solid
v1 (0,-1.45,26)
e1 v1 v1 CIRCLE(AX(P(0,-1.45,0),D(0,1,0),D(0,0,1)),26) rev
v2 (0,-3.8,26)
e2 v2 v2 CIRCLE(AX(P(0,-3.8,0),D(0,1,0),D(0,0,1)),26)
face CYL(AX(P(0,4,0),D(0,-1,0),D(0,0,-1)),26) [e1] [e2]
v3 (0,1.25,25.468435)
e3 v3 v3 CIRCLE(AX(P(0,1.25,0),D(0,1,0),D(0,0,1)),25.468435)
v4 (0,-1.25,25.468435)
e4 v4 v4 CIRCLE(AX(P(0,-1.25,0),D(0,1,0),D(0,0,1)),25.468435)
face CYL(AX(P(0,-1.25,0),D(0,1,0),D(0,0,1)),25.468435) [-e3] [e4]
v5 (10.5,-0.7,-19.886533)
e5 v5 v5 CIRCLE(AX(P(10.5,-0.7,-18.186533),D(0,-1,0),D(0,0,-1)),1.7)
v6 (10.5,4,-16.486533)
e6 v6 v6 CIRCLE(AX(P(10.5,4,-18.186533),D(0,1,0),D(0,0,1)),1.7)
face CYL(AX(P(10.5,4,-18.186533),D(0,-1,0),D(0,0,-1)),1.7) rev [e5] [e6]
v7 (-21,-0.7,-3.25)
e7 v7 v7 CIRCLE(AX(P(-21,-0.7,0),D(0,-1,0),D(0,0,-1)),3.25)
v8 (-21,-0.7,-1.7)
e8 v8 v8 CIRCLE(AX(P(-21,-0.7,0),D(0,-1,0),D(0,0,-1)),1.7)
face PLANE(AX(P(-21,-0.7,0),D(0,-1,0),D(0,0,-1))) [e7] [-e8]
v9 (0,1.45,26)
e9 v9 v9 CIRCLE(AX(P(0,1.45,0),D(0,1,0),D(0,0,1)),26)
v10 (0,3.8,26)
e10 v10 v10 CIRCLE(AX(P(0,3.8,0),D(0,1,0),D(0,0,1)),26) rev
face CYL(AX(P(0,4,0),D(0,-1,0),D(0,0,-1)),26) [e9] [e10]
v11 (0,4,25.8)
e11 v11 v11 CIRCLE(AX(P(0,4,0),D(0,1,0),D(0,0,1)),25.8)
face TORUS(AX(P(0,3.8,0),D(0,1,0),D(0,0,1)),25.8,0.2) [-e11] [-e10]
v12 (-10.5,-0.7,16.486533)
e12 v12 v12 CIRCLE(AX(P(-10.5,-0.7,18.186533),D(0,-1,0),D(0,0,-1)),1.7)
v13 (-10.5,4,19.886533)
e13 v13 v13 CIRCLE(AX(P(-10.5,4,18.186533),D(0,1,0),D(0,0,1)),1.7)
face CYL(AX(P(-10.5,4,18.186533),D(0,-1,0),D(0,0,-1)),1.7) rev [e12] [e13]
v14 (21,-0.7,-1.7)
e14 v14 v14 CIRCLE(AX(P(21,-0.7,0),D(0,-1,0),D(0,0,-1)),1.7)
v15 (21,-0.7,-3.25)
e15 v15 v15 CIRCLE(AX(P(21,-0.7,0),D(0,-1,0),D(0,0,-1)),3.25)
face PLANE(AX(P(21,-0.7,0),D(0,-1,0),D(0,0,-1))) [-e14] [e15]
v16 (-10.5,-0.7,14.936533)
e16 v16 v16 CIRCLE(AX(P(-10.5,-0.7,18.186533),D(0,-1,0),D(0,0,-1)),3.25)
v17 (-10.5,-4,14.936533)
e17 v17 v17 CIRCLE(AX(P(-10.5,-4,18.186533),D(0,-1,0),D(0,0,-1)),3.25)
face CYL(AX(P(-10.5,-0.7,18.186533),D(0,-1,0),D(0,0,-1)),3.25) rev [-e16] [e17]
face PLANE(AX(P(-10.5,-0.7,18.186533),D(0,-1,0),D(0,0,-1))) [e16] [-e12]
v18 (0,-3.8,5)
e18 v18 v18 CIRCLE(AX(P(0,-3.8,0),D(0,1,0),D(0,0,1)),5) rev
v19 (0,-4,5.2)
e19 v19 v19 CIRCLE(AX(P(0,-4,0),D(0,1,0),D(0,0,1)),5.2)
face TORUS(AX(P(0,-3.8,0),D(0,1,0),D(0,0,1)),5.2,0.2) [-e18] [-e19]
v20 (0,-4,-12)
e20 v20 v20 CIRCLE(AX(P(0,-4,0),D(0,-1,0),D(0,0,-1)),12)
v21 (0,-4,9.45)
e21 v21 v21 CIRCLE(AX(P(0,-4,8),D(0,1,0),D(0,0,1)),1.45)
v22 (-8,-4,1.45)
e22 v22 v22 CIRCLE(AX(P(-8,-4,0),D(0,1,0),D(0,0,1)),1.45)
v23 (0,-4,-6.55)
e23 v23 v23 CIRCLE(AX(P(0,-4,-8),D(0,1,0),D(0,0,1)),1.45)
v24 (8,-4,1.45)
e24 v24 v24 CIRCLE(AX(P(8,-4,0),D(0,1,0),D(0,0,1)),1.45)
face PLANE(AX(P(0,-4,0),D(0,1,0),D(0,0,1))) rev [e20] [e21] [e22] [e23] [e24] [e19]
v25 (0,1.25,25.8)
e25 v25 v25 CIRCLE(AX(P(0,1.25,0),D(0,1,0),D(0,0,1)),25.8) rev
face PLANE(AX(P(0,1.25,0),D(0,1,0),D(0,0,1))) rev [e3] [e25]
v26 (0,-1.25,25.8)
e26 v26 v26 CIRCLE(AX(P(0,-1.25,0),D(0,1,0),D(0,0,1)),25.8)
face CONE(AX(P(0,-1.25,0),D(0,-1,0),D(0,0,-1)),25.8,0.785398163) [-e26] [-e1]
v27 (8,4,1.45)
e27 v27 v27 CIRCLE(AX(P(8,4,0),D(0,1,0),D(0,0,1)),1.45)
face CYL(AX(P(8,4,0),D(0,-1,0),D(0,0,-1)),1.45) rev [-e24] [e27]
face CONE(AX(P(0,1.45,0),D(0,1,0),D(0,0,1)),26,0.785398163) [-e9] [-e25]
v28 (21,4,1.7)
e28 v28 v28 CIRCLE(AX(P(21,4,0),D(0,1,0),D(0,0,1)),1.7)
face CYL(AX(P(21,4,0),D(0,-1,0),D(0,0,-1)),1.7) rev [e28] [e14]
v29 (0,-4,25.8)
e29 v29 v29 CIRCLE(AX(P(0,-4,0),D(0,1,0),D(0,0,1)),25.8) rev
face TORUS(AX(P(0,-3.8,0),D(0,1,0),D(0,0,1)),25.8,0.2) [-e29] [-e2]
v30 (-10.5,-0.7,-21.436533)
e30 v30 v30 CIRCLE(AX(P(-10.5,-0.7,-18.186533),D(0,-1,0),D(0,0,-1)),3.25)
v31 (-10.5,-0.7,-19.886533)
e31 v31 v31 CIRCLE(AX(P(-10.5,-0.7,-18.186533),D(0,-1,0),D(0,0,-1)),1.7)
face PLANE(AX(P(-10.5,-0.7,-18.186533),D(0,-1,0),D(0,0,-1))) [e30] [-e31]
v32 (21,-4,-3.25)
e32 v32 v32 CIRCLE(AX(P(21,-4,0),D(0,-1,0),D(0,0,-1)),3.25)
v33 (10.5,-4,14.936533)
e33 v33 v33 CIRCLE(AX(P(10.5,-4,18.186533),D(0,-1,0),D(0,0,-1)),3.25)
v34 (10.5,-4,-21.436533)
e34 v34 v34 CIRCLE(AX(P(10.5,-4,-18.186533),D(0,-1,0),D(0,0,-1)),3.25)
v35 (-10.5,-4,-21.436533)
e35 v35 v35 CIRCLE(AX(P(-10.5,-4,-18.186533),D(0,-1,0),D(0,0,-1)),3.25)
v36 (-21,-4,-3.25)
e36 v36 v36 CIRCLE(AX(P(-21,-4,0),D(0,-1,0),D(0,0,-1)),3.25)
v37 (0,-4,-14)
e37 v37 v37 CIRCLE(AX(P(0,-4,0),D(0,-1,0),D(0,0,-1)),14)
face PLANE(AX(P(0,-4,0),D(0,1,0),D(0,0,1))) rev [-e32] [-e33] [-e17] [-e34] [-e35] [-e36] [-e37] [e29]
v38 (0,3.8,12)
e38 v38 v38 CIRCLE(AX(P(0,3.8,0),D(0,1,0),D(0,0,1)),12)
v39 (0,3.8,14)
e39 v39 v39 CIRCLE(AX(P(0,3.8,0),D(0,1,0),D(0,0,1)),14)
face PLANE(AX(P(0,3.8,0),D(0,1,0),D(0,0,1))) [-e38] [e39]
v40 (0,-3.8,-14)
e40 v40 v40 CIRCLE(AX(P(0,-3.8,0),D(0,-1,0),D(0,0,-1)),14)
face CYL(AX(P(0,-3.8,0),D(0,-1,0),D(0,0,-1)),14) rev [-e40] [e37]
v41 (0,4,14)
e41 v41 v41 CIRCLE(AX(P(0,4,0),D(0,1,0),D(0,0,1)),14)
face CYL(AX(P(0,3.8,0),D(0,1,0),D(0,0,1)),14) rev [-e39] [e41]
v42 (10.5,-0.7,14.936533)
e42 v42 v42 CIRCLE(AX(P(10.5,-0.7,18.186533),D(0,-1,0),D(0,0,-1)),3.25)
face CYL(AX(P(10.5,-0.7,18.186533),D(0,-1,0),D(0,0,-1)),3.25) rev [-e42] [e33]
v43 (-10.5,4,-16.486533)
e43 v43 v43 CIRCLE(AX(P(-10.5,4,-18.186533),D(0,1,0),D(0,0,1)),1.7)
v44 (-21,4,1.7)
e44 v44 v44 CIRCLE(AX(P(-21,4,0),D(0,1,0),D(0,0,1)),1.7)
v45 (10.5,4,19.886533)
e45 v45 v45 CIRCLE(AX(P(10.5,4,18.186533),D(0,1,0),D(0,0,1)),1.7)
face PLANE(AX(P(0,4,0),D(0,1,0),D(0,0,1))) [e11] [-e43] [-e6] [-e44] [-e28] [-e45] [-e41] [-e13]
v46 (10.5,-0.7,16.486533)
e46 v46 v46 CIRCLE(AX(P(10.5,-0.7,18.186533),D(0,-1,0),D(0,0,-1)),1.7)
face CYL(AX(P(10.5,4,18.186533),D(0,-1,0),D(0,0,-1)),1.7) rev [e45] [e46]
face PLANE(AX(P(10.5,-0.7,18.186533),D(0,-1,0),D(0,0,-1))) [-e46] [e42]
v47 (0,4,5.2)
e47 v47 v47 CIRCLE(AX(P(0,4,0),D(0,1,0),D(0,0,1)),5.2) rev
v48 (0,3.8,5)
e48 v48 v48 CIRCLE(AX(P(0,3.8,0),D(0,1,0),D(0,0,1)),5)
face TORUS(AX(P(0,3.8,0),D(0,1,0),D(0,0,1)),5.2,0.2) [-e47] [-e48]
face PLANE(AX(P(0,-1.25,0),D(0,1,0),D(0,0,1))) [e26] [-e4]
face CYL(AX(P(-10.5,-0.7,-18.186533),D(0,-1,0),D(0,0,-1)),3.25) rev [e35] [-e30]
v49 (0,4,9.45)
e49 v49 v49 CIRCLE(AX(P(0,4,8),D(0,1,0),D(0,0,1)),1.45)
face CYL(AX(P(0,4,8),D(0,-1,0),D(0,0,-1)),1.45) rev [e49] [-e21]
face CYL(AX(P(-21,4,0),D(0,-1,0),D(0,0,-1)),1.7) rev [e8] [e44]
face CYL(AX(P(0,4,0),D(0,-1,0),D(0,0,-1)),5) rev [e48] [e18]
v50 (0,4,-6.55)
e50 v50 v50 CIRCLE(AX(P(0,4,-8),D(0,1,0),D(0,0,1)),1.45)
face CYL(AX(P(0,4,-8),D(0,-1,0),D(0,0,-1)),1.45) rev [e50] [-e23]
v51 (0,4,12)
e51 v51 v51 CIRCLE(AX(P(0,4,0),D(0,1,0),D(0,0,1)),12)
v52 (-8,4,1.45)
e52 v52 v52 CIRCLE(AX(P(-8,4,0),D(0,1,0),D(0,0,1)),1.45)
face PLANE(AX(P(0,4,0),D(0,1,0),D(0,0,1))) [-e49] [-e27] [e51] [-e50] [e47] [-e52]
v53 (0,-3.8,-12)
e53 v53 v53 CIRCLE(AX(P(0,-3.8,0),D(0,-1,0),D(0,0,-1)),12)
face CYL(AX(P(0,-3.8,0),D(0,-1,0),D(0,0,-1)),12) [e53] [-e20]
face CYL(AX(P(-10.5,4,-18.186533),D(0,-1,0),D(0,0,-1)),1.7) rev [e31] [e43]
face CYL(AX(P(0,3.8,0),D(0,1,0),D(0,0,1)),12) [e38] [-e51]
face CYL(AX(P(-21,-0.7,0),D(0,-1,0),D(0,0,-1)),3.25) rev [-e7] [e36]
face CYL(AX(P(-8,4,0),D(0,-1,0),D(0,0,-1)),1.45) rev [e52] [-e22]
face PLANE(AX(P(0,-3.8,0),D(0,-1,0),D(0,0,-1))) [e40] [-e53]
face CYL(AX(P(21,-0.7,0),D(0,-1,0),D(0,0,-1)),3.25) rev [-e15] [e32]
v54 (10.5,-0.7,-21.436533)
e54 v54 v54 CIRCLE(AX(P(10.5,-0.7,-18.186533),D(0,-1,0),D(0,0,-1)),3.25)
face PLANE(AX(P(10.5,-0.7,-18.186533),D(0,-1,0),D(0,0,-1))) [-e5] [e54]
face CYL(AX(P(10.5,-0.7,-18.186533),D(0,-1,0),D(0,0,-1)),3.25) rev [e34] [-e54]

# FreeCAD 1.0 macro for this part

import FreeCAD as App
import Part
import Sketcher
Q = App.Units.Quantity


def edges_at(feature, points):
    """Names of the edges that pass closest to the given points."""
    edges = feature.Shape.Edges
    near = lambda p: min(range(len(edges)), key=lambda i: edges[i].distToShape(Part.Vertex(*p))[0])
    return sorted({f"Edge{near(p) + 1}" for p in points})

doc = App.newDocument("Part")
params = doc.addObject("Spreadsheet::Sheet", "Params")
for row, (alias, value) in enumerate([
    ("sketch1_diameter", "52 mm"),
    ("sketch1_diameter2", "10 mm"),
    ("sketch1_diameter3", "3.4 mm"),
    ("sketch1_diameter4", "2.9 mm"),
    ("pad1_length", "8 mm"),
    ("sketch2_diameter", "28 mm"),
    ("sketch2_diameter2", "24 mm"),
    ("pocket1_length", "0.2 mm"),
    ("sketch3_diameter", "28 mm"),
    ("sketch3_diameter2", "24 mm"),
    ("pocket2_length", "0.2 mm"),
    ("pocket3_length", "2.5 mm"),
    ("chamfer_size", "0.2 mm"),
    ("fillet_radius", "0.2 mm"),
    ("sketch5_diameter", "6.5 mm"),
    ("pocket4_length", "3.3 mm"),
], start=1):
    params.set(f"A{row}", alias)
    params.set(f"B{row}", "=" + value)
    params.setAlias(f"B{row}", alias)

body = doc.addObject("PartDesign::Body", "Body")

# Sketch on XZ plane
sketch1 = doc.addObject("Sketcher::SketchObject", "Sketch")
body.addObject(sketch1)
sketch1.AttachmentSupport = (doc.XZ_Plane, [""])
sketch1.MapMode = "FlatFace"
sketch1.addGeometry([
    Part.Circle(App.Vector(0, 0, 0), App.Vector(0, 0, 1), 26),  # 0
    Part.Circle(App.Vector(-10.5, 18.2, 0), App.Vector(0, 0, 1), 1.7),  # 1
    Part.Circle(App.Vector(10.5, 18.2, 0), App.Vector(0, 0, 1), 1.7),  # 2
    Part.Circle(App.Vector(0, 8, 0), App.Vector(0, 0, 1), 1.4),  # 3
    Part.Circle(App.Vector(-21, 0, 0), App.Vector(0, 0, 1), 1.7),  # 4
    Part.Circle(App.Vector(-8, 0, 0), App.Vector(0, 0, 1), 1.4),  # 5
    Part.Circle(App.Vector(-10.5, -18.2, 0), App.Vector(0, 0, 1), 1.7),  # 6
    Part.Circle(App.Vector(0, 0, 0), App.Vector(0, 0, 1), 5),  # 7
    Part.Circle(App.Vector(8, 0, 0), App.Vector(0, 0, 1), 1.4),  # 8
    Part.Circle(App.Vector(0, -8, 0), App.Vector(0, 0, 1), 1.4),  # 9
    Part.Circle(App.Vector(21, 0, 0), App.Vector(0, 0, 1), 1.7),  # 10
    Part.Circle(App.Vector(10.5, -18.2, 0), App.Vector(0, 0, 1), 1.7),  # 11
], False)
sketch1.addConstraint([
    Sketcher.Constraint("Coincident", 0, 3, -1, 1),
    Sketcher.Constraint("Coincident", 7, 3, -1, 1),
    Sketcher.Constraint("Equal", 1, 2),
    Sketcher.Constraint("Equal", 2, 4),
    Sketcher.Constraint("Equal", 3, 5),
    Sketcher.Constraint("Equal", 4, 6),
    Sketcher.Constraint("Equal", 5, 8),
    Sketcher.Constraint("Equal", 8, 9),
    Sketcher.Constraint("Equal", 6, 10),
    Sketcher.Constraint("Equal", 10, 11),
    Sketcher.Constraint("Symmetric", 2, 3, 6, 3, -1, 1),
    Sketcher.Constraint("Symmetric", 5, 3, 8, 3, -1, 1),
    Sketcher.Constraint("Symmetric", 3, 3, 9, 3, -1, 1),
    Sketcher.Constraint("Symmetric", 4, 3, 10, 3, -1, 1),
    Sketcher.Constraint("Symmetric", 1, 3, 11, 3, -1, 1),
    Sketcher.Constraint("Symmetric", 1, 3, 2, 3, -2),
    Sketcher.Constraint("PointOnObject", 3, 3, -2),
    Sketcher.Constraint("PointOnObject", 4, 3, -1),
    Sketcher.Constraint("PointOnObject", 5, 3, -1),
    Sketcher.Constraint("Diameter", 0, Q("52 mm")),
    Sketcher.Constraint("Diameter", 7, Q("10 mm")),
    Sketcher.Constraint("Diameter", 1, Q("3.4 mm")),
    Sketcher.Constraint("Diameter", 3, Q("2.9 mm")),
    Sketcher.Constraint("DistanceY", -1, 1, 3, 3, Q("8 mm")),
    Sketcher.Constraint("DistanceX", 4, 3, -1, 1, Q("21 mm")),
    Sketcher.Constraint("DistanceX", 5, 3, -1, 1, Q("8 mm")),
    Sketcher.Constraint("DistanceX", 1, 3, 2, 3, Q("21 mm")),
    Sketcher.Constraint("DistanceY", -1, 1, 1, 3, Q("18.186533 mm")),
])
sketch1.setExpression("Constraints[19]", "Params.sketch1_diameter")
sketch1.setExpression("Constraints[20]", "Params.sketch1_diameter2")
sketch1.setExpression("Constraints[21]", "Params.sketch1_diameter3")
sketch1.setExpression("Constraints[22]", "Params.sketch1_diameter4")
pad1 = doc.addObject("PartDesign::Pad", "Pad")
body.addObject(pad1)
pad1.Profile = sketch1
pad1.setExpression("Length", "Params.pad1_length")
pad1.Midplane = True

# Sketch on XZ plane
sketch2 = doc.addObject("Sketcher::SketchObject", "Sketch001")
body.addObject(sketch2)
sketch2.AttachmentSupport = (doc.XZ_Plane, [""])
sketch2.MapMode = "FlatFace"
sketch2.AttachmentOffset = App.Placement(App.Vector(0, 0, -4), App.Rotation())
sketch2.addGeometry([
    Part.Circle(App.Vector(0, 0, 0), App.Vector(0, 0, 1), 14),
    Part.Circle(App.Vector(0, 0, 0), App.Vector(0, 0, 1), 12),
], False)
sketch2.addConstraint([
    Sketcher.Constraint("Coincident", 0, 3, -1, 1),
    Sketcher.Constraint("Coincident", 1, 3, -1, 1),
    Sketcher.Constraint("Diameter", 0, Q("28 mm")),
    Sketcher.Constraint("Diameter", 1, Q("24 mm")),
])
sketch2.setExpression("Constraints[2]", "Params.sketch2_diameter")
sketch2.setExpression("Constraints[3]", "Params.sketch2_diameter2")
pocket1 = doc.addObject("PartDesign::Pocket", "Pocket")
body.addObject(pocket1)
pocket1.Profile = sketch2
pocket1.setExpression("Length", "Params.pocket1_length")
pocket1.Reversed = True

# Sketch on XZ plane
sketch3 = doc.addObject("Sketcher::SketchObject", "Sketch002")
body.addObject(sketch3)
sketch3.AttachmentSupport = (doc.XZ_Plane, [""])
sketch3.MapMode = "FlatFace"
sketch3.AttachmentOffset = App.Placement(App.Vector(0, 0, 4), App.Rotation())
sketch3.addGeometry([
    Part.Circle(App.Vector(0, 0, 0), App.Vector(0, 0, 1), 14),
    Part.Circle(App.Vector(0, 0, 0), App.Vector(0, 0, 1), 12),
], False)
sketch3.addConstraint([
    Sketcher.Constraint("Coincident", 0, 3, -1, 1),
    Sketcher.Constraint("Coincident", 1, 3, -1, 1),
    Sketcher.Constraint("Diameter", 0, Q("28 mm")),
    Sketcher.Constraint("Diameter", 1, Q("24 mm")),
])
sketch3.setExpression("Constraints[2]", "Params.sketch3_diameter")
sketch3.setExpression("Constraints[3]", "Params.sketch3_diameter2")
pocket2 = doc.addObject("PartDesign::Pocket", "Pocket001")
body.addObject(pocket2)
pocket2.Profile = sketch3
pocket2.setExpression("Length", "Params.pocket2_length")

# Sketch on XZ plane
sketch4 = doc.addObject("Sketcher::SketchObject", "Sketch003")
body.addObject(sketch4)
sketch4.AttachmentSupport = (doc.XZ_Plane, [""])
sketch4.MapMode = "FlatFace"
sketch4.addGeometry([
    Part.Circle(App.Vector(0, 0, 0), App.Vector(0, 0, 1), 28),
    Part.Circle(App.Vector(0, 0, 0), App.Vector(0, 0, 1), 25),
], False)
sketch4.addConstraint([
    Sketcher.Constraint("Coincident", 0, 3, -1, 1),
    Sketcher.Constraint("Coincident", 1, 3, -1, 1),
    Sketcher.Constraint("Diameter", 1, Q("50.936869 mm")),
    Sketcher.Constraint("Diameter", 0, Q("55.847837 mm")),
])
pocket3 = doc.addObject("PartDesign::Pocket", "Pocket002")
body.addObject(pocket3)
pocket3.Profile = sketch4
pocket3.setExpression("Length", "Params.pocket3_length")
pocket3.Midplane = True
doc.recompute()

chamfer = doc.addObject("PartDesign::Chamfer", "Chamfer")
body.addObject(chamfer)
chamfer.Base = (pocket3, edges_at(pocket3, [(-26, 1.25, 0), (-26, -1.25, 0)]))
chamfer.setExpression("Size", "Params.chamfer_size")
doc.recompute()

fillet = doc.addObject("PartDesign::Fillet", "Fillet")
body.addObject(fillet)
fillet.Base = (chamfer, edges_at(chamfer, [
    (-26, -4, 0),
    (-26, 4, 0),
    (-5, -4, 0),
    (-5, 4, 0),
]))
fillet.setExpression("Radius", "Params.fillet_radius")

# Sketch on XZ plane
sketch5 = doc.addObject("Sketcher::SketchObject", "Sketch004")
body.addObject(sketch5)
sketch5.AttachmentSupport = (doc.XZ_Plane, [""])
sketch5.MapMode = "FlatFace"
sketch5.AttachmentOffset = App.Placement(App.Vector(0, 0, 4), App.Rotation())
sketch5.addGeometry([
    Part.Circle(App.Vector(-21, 0, 0), App.Vector(0, 0, 1), 3.2),  # 0
    Part.Circle(App.Vector(-10.5, -18.2, 0), App.Vector(0, 0, 1), 3.2),  # 1
    Part.Circle(App.Vector(10.5, -18.2, 0), App.Vector(0, 0, 1), 3.2),  # 2
    Part.Circle(App.Vector(21, 0, 0), App.Vector(0, 0, 1), 3.2),  # 3
    Part.Circle(App.Vector(10.5, 18.2, 0), App.Vector(0, 0, 1), 3.2),  # 4
    Part.Circle(App.Vector(-10.5, 18.2, 0), App.Vector(0, 0, 1), 3.2),  # 5
], False)
sketch5.addConstraint([
    Sketcher.Constraint("Equal", 0, 1),
    Sketcher.Constraint("Equal", 1, 2),
    Sketcher.Constraint("Equal", 2, 3),
    Sketcher.Constraint("Equal", 3, 4),
    Sketcher.Constraint("Equal", 4, 5),
    Sketcher.Constraint("Symmetric", 0, 3, 3, 3, -1, 1),
    Sketcher.Constraint("Symmetric", 1, 3, 4, 3, -1, 1),
    Sketcher.Constraint("Symmetric", 2, 3, 5, 3, -1, 1),
    Sketcher.Constraint("Symmetric", 1, 3, 2, 3, -2),
    Sketcher.Constraint("PointOnObject", 0, 3, -1),
    Sketcher.Constraint("Diameter", 0, Q("6.5 mm")),
    Sketcher.Constraint("DistanceX", 0, 3, -1, 1, Q("21 mm")),
    Sketcher.Constraint("DistanceX", 1, 3, 2, 3, Q("21 mm")),
    Sketcher.Constraint("DistanceY", 1, 3, -1, 1, Q("18.186533 mm")),
])
sketch5.setExpression("Constraints[10]", "Params.sketch5_diameter")
pocket4 = doc.addObject("PartDesign::Pocket", "Pocket003")
body.addObject(pocket4)
pocket4.Profile = sketch5
pocket4.setExpression("Length", "Params.pocket4_length")

doc.recompute()
